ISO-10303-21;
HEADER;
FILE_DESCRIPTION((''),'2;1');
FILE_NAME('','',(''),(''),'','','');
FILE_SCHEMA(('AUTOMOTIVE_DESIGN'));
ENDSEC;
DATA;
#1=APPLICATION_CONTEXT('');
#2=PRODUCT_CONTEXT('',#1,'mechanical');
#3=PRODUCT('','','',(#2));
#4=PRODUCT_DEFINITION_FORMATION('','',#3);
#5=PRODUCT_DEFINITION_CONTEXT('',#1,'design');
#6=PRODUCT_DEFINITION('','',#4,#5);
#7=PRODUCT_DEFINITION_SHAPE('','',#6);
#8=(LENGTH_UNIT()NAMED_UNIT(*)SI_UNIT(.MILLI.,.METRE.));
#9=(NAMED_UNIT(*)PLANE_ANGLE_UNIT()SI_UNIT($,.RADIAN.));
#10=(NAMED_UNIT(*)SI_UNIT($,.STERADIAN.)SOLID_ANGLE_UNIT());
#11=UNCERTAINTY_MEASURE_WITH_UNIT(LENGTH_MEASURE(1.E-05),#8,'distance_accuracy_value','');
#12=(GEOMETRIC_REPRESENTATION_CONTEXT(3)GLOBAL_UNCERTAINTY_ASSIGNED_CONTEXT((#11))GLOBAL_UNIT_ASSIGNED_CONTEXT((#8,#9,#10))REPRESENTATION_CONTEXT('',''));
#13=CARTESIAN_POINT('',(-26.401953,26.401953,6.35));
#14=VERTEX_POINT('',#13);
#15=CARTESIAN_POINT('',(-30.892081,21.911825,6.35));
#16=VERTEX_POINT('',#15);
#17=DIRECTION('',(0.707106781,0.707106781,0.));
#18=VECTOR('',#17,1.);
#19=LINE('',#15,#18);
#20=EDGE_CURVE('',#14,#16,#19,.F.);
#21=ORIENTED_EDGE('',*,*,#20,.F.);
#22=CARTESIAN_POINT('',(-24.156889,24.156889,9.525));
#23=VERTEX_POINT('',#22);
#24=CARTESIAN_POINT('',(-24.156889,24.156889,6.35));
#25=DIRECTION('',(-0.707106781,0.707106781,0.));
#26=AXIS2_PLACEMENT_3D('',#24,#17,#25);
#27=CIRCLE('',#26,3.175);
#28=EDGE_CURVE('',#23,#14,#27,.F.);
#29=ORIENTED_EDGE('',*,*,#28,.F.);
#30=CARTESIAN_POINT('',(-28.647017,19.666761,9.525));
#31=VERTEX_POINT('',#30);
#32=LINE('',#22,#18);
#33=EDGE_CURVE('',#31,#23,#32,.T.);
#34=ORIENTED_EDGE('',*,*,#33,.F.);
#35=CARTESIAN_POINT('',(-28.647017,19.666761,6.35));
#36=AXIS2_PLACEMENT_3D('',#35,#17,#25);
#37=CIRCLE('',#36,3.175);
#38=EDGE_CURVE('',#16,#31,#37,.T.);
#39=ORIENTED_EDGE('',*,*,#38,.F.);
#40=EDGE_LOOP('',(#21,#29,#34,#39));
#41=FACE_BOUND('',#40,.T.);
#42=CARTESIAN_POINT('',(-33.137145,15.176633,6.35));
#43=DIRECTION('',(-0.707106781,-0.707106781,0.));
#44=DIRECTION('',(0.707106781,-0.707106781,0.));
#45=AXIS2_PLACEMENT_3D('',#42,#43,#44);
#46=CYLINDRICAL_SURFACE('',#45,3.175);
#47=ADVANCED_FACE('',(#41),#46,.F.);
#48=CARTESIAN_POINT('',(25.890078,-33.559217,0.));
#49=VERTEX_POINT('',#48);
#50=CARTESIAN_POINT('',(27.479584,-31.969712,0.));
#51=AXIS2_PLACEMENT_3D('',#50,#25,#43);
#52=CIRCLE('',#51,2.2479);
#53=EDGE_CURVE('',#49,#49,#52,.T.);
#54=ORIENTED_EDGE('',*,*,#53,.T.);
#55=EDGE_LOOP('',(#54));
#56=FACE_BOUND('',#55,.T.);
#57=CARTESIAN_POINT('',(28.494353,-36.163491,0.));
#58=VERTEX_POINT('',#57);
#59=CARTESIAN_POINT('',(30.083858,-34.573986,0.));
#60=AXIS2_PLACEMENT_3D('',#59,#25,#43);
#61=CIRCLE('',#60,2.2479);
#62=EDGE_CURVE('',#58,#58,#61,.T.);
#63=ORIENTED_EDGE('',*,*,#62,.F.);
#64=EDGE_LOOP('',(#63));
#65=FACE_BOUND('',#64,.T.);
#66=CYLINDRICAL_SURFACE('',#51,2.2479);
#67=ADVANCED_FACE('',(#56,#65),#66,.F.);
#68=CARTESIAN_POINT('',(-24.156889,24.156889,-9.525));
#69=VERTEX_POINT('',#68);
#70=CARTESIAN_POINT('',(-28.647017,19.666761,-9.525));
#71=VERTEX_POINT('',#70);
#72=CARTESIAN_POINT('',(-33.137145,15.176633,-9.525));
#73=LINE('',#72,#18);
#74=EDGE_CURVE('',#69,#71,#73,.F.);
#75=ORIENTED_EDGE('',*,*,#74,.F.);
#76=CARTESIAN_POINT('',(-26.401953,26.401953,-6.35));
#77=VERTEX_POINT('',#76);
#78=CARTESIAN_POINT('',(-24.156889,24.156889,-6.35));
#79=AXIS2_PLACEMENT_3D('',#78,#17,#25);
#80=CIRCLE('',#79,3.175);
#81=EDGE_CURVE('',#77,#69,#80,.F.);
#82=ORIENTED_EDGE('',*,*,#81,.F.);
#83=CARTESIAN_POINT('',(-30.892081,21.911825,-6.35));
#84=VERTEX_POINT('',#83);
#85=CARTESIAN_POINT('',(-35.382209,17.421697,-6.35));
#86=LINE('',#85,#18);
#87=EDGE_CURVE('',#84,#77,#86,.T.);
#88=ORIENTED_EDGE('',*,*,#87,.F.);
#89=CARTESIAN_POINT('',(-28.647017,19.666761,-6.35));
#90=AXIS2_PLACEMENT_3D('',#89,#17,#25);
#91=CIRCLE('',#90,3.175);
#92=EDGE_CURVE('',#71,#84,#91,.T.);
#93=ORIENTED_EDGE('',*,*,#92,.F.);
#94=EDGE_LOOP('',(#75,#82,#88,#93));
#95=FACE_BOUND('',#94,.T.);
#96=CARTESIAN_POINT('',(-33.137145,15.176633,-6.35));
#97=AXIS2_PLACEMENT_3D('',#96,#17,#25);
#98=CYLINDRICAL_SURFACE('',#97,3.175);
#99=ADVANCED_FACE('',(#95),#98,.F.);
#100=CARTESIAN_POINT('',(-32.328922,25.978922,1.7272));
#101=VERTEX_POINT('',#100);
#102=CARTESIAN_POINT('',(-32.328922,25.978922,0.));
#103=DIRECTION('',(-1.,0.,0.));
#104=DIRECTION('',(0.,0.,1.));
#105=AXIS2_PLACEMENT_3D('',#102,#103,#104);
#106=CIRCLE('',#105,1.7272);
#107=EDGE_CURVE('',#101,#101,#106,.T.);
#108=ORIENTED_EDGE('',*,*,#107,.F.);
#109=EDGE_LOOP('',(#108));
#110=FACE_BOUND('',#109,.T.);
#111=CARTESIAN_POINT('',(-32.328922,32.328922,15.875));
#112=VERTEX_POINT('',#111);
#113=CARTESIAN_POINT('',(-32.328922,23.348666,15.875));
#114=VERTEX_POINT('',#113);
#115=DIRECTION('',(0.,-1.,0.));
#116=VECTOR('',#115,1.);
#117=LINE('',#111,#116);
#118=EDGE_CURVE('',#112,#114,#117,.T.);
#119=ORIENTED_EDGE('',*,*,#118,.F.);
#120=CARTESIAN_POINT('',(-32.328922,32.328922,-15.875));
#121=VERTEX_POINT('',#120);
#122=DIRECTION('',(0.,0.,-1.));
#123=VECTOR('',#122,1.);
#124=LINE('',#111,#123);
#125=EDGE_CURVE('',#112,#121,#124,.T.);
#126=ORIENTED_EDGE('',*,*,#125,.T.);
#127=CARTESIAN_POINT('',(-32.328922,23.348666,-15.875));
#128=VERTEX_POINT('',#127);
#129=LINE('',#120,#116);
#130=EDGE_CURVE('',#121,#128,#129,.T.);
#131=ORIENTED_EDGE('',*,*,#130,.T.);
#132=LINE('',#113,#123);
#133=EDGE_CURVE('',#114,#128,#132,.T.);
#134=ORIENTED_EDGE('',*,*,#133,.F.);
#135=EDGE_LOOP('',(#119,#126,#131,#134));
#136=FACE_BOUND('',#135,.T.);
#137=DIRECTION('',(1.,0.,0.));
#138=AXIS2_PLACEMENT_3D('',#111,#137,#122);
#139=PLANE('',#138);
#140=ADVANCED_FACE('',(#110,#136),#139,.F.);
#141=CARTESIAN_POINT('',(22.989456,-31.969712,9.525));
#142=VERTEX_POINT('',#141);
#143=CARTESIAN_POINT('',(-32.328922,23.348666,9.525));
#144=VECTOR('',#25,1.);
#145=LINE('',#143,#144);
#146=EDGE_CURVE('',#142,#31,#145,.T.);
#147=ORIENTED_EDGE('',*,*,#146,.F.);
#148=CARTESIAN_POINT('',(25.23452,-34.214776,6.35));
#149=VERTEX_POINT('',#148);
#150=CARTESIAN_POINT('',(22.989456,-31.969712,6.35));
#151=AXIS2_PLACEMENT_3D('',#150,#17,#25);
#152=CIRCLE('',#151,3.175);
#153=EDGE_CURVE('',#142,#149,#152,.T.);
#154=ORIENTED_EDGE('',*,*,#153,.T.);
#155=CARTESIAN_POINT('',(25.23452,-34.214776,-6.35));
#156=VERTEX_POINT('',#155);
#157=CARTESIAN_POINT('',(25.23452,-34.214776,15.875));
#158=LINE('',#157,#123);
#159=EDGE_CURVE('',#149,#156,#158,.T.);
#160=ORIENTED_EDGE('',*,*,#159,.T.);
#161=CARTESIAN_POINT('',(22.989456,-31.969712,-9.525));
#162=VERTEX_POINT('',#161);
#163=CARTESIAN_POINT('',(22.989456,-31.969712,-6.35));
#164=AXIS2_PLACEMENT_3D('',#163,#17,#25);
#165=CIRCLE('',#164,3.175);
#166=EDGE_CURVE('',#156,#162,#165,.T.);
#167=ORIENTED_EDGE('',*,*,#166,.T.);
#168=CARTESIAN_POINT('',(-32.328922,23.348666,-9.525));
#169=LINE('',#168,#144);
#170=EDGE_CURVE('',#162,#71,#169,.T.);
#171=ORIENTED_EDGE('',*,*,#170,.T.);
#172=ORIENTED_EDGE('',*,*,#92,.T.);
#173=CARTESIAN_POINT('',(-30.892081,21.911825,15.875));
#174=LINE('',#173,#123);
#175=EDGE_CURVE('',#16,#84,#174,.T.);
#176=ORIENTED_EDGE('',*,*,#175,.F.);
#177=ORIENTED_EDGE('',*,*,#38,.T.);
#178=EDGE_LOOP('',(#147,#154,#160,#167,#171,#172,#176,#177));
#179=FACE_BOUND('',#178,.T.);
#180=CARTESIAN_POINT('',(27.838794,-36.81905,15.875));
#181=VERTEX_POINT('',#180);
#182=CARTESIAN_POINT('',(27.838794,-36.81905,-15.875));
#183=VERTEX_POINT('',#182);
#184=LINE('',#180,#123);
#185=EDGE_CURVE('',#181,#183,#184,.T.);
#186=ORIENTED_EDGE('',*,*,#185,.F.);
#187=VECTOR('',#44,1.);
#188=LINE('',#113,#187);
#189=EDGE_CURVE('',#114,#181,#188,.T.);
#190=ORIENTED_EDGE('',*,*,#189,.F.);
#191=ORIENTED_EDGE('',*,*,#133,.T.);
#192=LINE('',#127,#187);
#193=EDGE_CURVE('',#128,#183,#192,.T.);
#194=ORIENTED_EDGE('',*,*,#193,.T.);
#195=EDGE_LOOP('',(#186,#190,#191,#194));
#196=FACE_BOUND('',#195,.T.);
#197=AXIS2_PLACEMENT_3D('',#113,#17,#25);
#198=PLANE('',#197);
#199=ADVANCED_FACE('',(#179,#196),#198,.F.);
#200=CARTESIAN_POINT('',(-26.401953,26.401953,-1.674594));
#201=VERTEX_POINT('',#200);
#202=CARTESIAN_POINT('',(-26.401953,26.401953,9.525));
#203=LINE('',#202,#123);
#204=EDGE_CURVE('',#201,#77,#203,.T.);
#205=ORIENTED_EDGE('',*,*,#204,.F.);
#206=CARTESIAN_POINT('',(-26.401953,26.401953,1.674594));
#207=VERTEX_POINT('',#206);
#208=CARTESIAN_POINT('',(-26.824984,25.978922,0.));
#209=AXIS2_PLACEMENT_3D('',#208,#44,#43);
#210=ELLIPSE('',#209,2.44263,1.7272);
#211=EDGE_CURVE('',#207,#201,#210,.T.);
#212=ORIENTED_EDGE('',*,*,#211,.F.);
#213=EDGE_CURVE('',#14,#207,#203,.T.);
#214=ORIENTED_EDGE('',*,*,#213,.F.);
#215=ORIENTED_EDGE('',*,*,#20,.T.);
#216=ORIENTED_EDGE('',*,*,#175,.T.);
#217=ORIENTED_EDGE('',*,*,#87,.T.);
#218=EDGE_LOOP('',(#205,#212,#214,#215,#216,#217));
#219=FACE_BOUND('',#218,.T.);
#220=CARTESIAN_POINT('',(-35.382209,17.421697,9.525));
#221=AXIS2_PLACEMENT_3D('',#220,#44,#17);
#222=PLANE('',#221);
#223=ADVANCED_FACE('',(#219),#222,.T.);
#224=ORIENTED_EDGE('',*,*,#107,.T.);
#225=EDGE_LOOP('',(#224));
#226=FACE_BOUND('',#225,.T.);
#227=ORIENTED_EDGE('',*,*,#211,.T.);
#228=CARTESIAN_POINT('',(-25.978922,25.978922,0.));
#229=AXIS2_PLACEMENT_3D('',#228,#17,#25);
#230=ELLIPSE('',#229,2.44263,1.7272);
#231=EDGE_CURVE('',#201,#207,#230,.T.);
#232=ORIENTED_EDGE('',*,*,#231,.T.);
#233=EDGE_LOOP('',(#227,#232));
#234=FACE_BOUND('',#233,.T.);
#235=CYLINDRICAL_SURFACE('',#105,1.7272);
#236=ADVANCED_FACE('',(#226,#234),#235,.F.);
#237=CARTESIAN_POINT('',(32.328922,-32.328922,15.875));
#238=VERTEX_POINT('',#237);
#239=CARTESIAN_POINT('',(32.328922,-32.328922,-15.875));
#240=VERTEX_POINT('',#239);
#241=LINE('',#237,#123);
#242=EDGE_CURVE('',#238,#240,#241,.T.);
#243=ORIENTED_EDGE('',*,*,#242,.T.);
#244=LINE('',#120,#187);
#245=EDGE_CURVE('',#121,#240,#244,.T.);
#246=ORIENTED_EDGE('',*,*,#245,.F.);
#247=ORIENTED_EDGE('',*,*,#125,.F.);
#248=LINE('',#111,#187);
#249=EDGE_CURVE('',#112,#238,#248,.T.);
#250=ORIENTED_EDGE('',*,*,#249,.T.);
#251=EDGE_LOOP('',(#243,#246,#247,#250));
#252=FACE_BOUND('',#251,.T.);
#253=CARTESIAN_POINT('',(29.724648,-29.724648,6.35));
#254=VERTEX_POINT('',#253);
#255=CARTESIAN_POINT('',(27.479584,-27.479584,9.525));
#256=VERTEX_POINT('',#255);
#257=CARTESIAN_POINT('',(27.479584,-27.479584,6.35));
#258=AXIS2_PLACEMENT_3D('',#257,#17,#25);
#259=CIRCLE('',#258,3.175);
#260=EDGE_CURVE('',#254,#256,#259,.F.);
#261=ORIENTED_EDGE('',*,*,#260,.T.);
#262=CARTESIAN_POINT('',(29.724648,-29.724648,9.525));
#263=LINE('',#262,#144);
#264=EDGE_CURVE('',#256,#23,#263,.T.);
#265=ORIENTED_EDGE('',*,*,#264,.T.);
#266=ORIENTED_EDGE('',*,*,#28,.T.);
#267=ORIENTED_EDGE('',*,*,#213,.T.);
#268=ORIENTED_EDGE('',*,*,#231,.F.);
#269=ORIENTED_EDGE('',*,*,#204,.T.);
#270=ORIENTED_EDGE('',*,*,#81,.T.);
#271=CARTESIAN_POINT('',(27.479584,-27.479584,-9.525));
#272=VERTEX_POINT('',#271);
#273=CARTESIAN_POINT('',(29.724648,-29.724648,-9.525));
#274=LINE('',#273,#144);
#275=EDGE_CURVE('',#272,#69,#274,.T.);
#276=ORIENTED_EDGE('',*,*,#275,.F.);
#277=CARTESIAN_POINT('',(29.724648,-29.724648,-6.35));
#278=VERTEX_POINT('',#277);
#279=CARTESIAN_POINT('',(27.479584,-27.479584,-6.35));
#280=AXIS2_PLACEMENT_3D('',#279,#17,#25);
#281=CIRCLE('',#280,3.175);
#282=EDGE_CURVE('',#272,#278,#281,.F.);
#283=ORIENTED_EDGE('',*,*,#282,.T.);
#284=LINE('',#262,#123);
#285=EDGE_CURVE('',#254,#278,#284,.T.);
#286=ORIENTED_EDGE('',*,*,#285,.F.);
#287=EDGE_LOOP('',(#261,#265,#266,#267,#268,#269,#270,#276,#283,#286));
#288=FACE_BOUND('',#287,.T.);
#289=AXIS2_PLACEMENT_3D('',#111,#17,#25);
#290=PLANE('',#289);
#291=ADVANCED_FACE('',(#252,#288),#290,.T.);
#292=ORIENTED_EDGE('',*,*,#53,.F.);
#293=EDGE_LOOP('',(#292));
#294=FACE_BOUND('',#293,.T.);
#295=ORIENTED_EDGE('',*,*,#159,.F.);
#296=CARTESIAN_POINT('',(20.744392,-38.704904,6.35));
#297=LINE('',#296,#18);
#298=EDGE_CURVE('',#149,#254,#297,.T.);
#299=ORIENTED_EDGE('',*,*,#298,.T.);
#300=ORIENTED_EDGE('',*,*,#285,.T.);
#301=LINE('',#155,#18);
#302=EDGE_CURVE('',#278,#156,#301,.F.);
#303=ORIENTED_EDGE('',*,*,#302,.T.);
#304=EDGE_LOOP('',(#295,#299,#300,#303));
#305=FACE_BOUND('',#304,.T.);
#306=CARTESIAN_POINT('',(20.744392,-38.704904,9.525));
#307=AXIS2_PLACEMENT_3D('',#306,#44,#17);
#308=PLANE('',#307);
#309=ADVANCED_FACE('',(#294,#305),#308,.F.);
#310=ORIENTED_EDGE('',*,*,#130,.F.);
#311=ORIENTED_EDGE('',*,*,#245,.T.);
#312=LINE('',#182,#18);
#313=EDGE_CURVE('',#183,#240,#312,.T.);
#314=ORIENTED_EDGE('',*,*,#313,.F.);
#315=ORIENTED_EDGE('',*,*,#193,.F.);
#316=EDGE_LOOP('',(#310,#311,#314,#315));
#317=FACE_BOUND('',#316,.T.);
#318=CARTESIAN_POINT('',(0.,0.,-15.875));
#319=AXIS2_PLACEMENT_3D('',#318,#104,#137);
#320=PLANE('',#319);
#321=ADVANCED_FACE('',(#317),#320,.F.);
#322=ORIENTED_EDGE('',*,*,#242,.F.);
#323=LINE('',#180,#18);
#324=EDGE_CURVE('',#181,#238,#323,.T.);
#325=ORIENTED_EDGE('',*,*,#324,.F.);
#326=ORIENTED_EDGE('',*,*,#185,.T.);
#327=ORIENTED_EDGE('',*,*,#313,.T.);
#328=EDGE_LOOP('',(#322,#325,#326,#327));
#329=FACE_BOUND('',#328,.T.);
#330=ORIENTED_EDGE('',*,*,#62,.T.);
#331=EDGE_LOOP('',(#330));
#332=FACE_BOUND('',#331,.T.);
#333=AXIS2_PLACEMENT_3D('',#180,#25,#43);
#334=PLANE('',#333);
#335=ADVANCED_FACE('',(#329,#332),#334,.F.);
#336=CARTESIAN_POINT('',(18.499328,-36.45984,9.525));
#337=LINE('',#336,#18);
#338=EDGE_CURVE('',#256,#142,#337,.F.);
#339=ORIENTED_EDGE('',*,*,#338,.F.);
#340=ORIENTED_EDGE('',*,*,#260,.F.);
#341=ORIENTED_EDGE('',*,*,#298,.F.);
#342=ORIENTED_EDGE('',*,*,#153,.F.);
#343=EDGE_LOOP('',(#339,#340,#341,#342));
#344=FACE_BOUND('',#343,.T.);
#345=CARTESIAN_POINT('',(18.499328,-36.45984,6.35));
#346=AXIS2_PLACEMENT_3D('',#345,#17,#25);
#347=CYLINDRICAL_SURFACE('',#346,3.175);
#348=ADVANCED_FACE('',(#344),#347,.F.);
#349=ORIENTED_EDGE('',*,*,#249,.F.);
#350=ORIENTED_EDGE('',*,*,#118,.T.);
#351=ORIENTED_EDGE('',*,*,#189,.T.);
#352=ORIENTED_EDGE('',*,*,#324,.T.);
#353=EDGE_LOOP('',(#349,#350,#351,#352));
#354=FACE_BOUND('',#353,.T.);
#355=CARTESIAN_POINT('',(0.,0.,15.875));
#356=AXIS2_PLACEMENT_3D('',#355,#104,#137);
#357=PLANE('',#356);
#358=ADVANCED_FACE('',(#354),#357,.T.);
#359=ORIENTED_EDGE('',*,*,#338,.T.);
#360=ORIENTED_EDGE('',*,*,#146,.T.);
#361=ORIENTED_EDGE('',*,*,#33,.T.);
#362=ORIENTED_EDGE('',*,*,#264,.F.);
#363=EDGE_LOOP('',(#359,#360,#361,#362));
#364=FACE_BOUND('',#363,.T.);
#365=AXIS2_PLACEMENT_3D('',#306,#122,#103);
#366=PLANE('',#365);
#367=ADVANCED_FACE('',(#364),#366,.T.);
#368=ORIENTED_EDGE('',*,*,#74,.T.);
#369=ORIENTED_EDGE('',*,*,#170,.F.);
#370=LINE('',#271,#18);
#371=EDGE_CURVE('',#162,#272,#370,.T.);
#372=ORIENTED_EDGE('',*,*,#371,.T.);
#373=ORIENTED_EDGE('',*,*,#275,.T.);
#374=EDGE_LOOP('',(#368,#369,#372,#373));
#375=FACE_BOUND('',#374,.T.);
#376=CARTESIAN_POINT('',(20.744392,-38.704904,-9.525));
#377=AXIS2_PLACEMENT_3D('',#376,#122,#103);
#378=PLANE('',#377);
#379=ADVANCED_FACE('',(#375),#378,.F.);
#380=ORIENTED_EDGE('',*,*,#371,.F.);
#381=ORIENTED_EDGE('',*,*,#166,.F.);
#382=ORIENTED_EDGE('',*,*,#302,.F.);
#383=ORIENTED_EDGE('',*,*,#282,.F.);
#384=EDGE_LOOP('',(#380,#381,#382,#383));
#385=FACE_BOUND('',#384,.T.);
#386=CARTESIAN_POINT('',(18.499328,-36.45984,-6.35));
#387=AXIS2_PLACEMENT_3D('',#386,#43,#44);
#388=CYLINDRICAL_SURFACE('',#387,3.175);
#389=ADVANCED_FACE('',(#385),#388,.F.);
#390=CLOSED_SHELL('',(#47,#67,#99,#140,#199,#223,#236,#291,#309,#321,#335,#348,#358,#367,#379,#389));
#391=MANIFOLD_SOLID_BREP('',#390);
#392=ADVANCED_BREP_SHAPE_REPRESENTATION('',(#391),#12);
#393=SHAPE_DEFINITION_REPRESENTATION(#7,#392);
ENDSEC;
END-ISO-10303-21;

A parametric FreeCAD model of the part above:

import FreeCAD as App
import Part
import Sketcher

V = App.Vector
Q = App.Units.Quantity


def edges_at(feature, points):
    """Names of the edges that pass closest to the given points."""
    edges = feature.Shape.Edges
    near = lambda p: min(range(len(edges)), key=lambda i: edges[i].distToShape(Part.Vertex(*p))[0])
    return sorted({f"Edge{near(p) + 1}" for p in points})


def add_polygon(sketch, points):
    """Adds a closed chain of lines whose ends are joined by coincident constraints."""
    first, n = sketch.GeometryCount, len(points)
    for a, b in zip(points, points[1:] + points[:1]):
        sketch.addGeometry(Part.LineSegment(App.Vector(*a, 0), App.Vector(*b, 0)), False)
    for i in range(n):
        sketch.addConstraint(Sketcher.Constraint("Coincident", first + i, 2, first + (i + 1) % n, 1))

doc = App.newDocument("Part")
body = doc.addObject("PartDesign::Body", "Body")

# Sketch on XY plane
sketch1 = body.newObject("Sketcher::SketchObject", "Sketch")
sketch1.AttachmentSupport = (doc.getObject("XY_Plane"), [""])
sketch1.MapMode = "FlatFace"
add_polygon(sketch1, [(-32, 32), (-32, 23), (28, -37), (32, -32)])  # lines 0-3
sketch1.addConstraint([
    Sketcher.Constraint("Vertical", 0),
    Sketcher.Constraint("Symmetric", 2, 2, 3, 2, -1, 1),
    Sketcher.Constraint("Perpendicular", 1, 2),
    Sketcher.Constraint("Perpendicular", 2, 3),
    Sketcher.Constraint("Angle", 1, Q("-45 deg")),
    Sketcher.Constraint("Distance", 3, Q("3.6 in")),
    Sketcher.Constraint("Distance", 1, Q("3.35 in")),
])
pad1 = body.newObject("PartDesign::Pad", "Pad")
pad1.Profile = sketch1
pad1.Length = Q("1.25 in")
pad1.Midplane = True

# Sketch on an angled plane
sketch2 = body.newObject("Sketcher::SketchObject", "Sketch001")
sketch2.Placement = App.Placement(V(0, 0, 0), App.Rotation(V(0, 0, -1), V(-0.707106781, 0.707106781, 0), V(0.707106781, 0.707106781, 0), "ZXY"))
add_polygon(sketch2, [(-10, 37), (-10, -42), (10, -42), (10, 37)])  # lines 0-3
sketch2.addConstraint([
    Sketcher.Constraint("Vertical", 0),
    Sketcher.Constraint("Horizontal", 1),
    Sketcher.Constraint("Vertical", 2),
    Sketcher.Constraint("Horizontal", 3),
    Sketcher.Constraint("DistanceX", 1, 1, 1, 2, Q("0.75 in")),
    Sketcher.Constraint("DistanceY", 0, 2, 0, 1, Q("3.125 in")),
    Sketcher.Constraint("DistanceY", -1, 1, 2, 2, Q("1.47 in")),
    Sketcher.Constraint("DistanceX", 0, 2, -1, 1, Q("0.375 in")),
])
pocket1 = body.newObject("PartDesign::Pocket", "Pocket")
pocket1.Profile = sketch2
pocket1.Length = Q("0.5 in")
doc.recompute()

fillet = body.newObject("PartDesign::Fillet", "Fillet")
fillet.Base = (pocket1, edges_at(pocket1, [
    (27.48, -31.97, 9.525),
    (-28.647, 24.157, 9.525),
    (-28.647, 24.157, -9.525),
    (27.48, -31.97, -9.525),
]))
fillet.Radius = Q("0.125 in")

# Sketch on an angled plane
sketch3 = body.newObject("Sketcher::SketchObject", "Sketch002")
sketch3.Placement = App.Placement(V(29.724648, -29.724648, 0), App.Rotation(V(0, 0, 1), V(0.707106781, 0.707106781, 0), V(-0.707106781, 0.707106781, 0), "ZXY"))
sketch3.addGeometry(Part.Circle(V(0, -3.2, 0), V(0, 0, 1), 2.2), False)
sketch3.addConstraint([
    Sketcher.Constraint("PointOnObject", 0, 3, -2),
    Sketcher.Constraint("Diameter", 0, Q("0.177 in")),
    Sketcher.Constraint("DistanceY", 0, 3, -1, 1, Q("0.125 in")),
])
doc.recompute()
hole = body.newObject("PartDesign::Hole", "Hole")
hole.Profile = sketch3
hole.ThreadType = "None"
hole.Diameter = Q("0.177 in")
hole.DepthType = "Dimension"
hole.Depth = Q("0.65 in")
hole.DrillPoint = "Angled"
hole.DrillPointAngle = 118

# Sketch on YZ plane
sketch4 = body.newObject("Sketcher::SketchObject", "Sketch003")
sketch4.AttachmentSupport = (doc.getObject("YZ_Plane"), [""])
sketch4.MapMode = "FlatFace"
sketch4.AttachmentOffset = App.Placement(V(0, 0, -32.328922), App.Rotation())
sketch4.addGeometry(Part.Circle(V(26, 0, 0), V(0, 0, 1), 1.7), False)
sketch4.addConstraint([
    Sketcher.Constraint("PointOnObject", 0, 3, -1),
    Sketcher.Constraint("Diameter", 0, Q("0.136 in")),
    Sketcher.Constraint("DistanceX", -1, 1, 0, 3, Q("25.978922 mm")),
])
doc.recompute()
hole2 = body.newObject("PartDesign::Hole", "Hole001")
hole2.Profile = sketch4
hole2.ThreadType = "None"
hole2.Diameter = Q("0.136 in")
hole2.DepthType = "ThroughAll"
hole2.Reversed = True

doc.recompute()
